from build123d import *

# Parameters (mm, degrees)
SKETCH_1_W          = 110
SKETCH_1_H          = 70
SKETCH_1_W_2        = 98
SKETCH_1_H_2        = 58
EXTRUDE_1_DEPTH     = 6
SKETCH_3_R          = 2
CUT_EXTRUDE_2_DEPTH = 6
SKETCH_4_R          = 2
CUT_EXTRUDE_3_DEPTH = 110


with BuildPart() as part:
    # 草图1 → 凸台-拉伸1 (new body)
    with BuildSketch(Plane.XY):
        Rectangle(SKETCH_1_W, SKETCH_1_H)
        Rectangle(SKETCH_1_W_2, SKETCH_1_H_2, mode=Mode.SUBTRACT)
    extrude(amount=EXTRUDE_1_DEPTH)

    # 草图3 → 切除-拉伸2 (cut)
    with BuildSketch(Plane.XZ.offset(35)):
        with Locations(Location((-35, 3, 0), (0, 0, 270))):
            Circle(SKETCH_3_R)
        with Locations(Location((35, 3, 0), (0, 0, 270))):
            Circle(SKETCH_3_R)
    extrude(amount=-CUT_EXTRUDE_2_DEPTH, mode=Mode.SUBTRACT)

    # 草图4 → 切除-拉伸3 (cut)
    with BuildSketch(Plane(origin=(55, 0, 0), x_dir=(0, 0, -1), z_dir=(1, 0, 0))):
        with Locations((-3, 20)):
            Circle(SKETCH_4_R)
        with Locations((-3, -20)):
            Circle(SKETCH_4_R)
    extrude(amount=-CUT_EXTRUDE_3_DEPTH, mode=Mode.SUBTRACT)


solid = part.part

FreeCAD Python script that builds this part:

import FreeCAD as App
import Part
import Sketcher
from FreeCAD import Vector

doc = App.newDocument("Part")
params = doc.addObject("Spreadsheet::Sheet", "Params")
for row, (alias, value) in enumerate([
    ("sketch1_width", "110 mm"),
    ("sketch1_width2", "98 mm"),
    ("sketch1_height", "70 mm"),
    ("sketch1_height2", "58 mm"),
    ("pad1_length", "6 mm"),
    ("sketch2_diameter", "4 mm"),
    ("pocket1_length", "6 mm"),
    ("sketch3_diameter", "4 mm"),
    ("pocket2_length", "110 mm"),
], start=1):
    params.set(f"A{row}", alias)
    params.set(f"B{row}", "=" + value)
    params.setAlias(f"B{row}", alias)

body = doc.addObject("PartDesign::Body", "Body")

# Sketch on XY plane
sketch1 = body.newObject("Sketcher::SketchObject", "Sketch")
sketch1.AttachmentSupport = (doc.getObject("XY_Plane"), [""])
sketch1.MapMode = "FlatFace"
sketch1.addGeometry(Part.LineSegment(Vector(-55, 35, 0), Vector(-55, -35, 0)), False)
sketch1.addGeometry(Part.LineSegment(Vector(-55, -35, 0), Vector(55, -35, 0)), False)
sketch1.addGeometry(Part.LineSegment(Vector(55, -35, 0), Vector(55, 35, 0)), False)
sketch1.addGeometry(Part.LineSegment(Vector(55, 35, 0), Vector(-55, 35, 0)), False)
sketch1.addGeometry(Part.LineSegment(Vector(49, -29, 0), Vector(-49, -29, 0)), False)
sketch1.addGeometry(Part.LineSegment(Vector(-49, -29, 0), Vector(-49, 29, 0)), False)
sketch1.addGeometry(Part.LineSegment(Vector(-49, 29, 0), Vector(49, 29, 0)), False)
sketch1.addGeometry(Part.LineSegment(Vector(49, 29, 0), Vector(49, -29, 0)), False)
sketch1.addConstraint(Sketcher.Constraint("Coincident", 0, 2, 1, 1))
sketch1.addConstraint(Sketcher.Constraint("Coincident", 1, 2, 2, 1))
sketch1.addConstraint(Sketcher.Constraint("Coincident", 2, 2, 3, 1))
sketch1.addConstraint(Sketcher.Constraint("Coincident", 3, 2, 0, 1))
sketch1.addConstraint(Sketcher.Constraint("Coincident", 4, 2, 5, 1))
sketch1.addConstraint(Sketcher.Constraint("Coincident", 5, 2, 6, 1))
sketch1.addConstraint(Sketcher.Constraint("Coincident", 6, 2, 7, 1))
sketch1.addConstraint(Sketcher.Constraint("Coincident", 7, 2, 4, 1))
sketch1.addConstraint(Sketcher.Constraint("Vertical", 0))
sketch1.addConstraint(Sketcher.Constraint("Horizontal", 1))
sketch1.addConstraint(Sketcher.Constraint("Vertical", 2))
sketch1.addConstraint(Sketcher.Constraint("Horizontal", 3))
sketch1.addConstraint(Sketcher.Constraint("Horizontal", 4))
sketch1.addConstraint(Sketcher.Constraint("Vertical", 5))
sketch1.addConstraint(Sketcher.Constraint("Horizontal", 6))
sketch1.addConstraint(Sketcher.Constraint("Vertical", 7))
sketch1.addConstraint(Sketcher.Constraint("Symmetric", 0, 2, 2, 2, -1, 1))
sketch1.addConstraint(Sketcher.Constraint("Symmetric", 4, 2, 6, 2, -1, 1))
sketch1.addConstraint(Sketcher.Constraint("DistanceX", 1, 1, 1, 2, 110.0))
sketch1.addConstraint(Sketcher.Constraint("DistanceX", 4, 2, 4, 1, 98.0))
sketch1.addConstraint(Sketcher.Constraint("DistanceY", 0, 2, 0, 1, 70.0))
sketch1.addConstraint(Sketcher.Constraint("DistanceY", 5, 1, 5, 2, 58.0))
sketch1.setExpression("Constraints[18]", "Params.sketch1_width")
sketch1.setExpression("Constraints[19]", "Params.sketch1_width2")
sketch1.setExpression("Constraints[20]", "Params.sketch1_height")
sketch1.setExpression("Constraints[21]", "Params.sketch1_height2")
pad1 = body.newObject("PartDesign::Pad", "Pad")
pad1.Profile = sketch1
pad1.setExpression("Length", "Params.pad1_length")

# Sketch on XZ plane
sketch2 = body.newObject("Sketcher::SketchObject", "Sketch001")
sketch2.AttachmentSupport = (doc.getObject("XZ_Plane"), [""])
sketch2.MapMode = "FlatFace"
sketch2.AttachmentOffset = App.Placement(Vector(0, 0, 35), App.Rotation())
sketch2.addGeometry(Part.Circle(Vector(-35, 3, 0), Vector(0, 0, 1), 2), False)
sketch2.addGeometry(Part.Circle(Vector(35, 3, 0), Vector(0, 0, 1), 2), False)
sketch2.addConstraint(Sketcher.Constraint("Equal", 0, 1))
sketch2.addConstraint(Sketcher.Constraint("Symmetric", 0, 3, 1, 3, -2))
sketch2.addConstraint(Sketcher.Constraint("Diameter", 0, 4.0))
sketch2.addConstraint(Sketcher.Constraint("DistanceX", 0, 3, -1, 1, 35.0))
sketch2.addConstraint(Sketcher.Constraint("DistanceY", -1, 1, 0, 3, 3.0))
sketch2.setExpression("Constraints[2]", "Params.sketch2_diameter")
pocket1 = body.newObject("PartDesign::Pocket", "Pocket")
pocket1.Profile = sketch2
pocket1.setExpression("Length", "Params.pocket1_length")

# Sketch on YZ plane
sketch3 = body.newObject("Sketcher::SketchObject", "Sketch002")
sketch3.AttachmentSupport = (doc.getObject("YZ_Plane"), [""])
sketch3.MapMode = "FlatFace"
sketch3.AttachmentOffset = App.Placement(Vector(0, 0, 55), App.Rotation())
sketch3.addGeometry(Part.Circle(Vector(20, 3, 0), Vector(0, 0, 1), 2), False)
sketch3.addGeometry(Part.Circle(Vector(-20, 3, 0), Vector(0, 0, 1), 2), False)
sketch3.addConstraint(Sketcher.Constraint("Equal", 0, 1))
sketch3.addConstraint(Sketcher.Constraint("Symmetric", 0, 3, 1, 3, -2))
sketch3.addConstraint(Sketcher.Constraint("Diameter", 0, 4.0))
sketch3.addConstraint(Sketcher.Constraint("DistanceX", -1, 1, 0, 3, 20.0))
sketch3.addConstraint(Sketcher.Constraint("DistanceY", -1, 1, 0, 3, 3.0))
sketch3.setExpression("Constraints[2]", "Params.sketch3_diameter")
pocket2 = body.newObject("PartDesign::Pocket", "Pocket001")
pocket2.Profile = sketch3
pocket2.setExpression("Length", "Params.pocket2_length")

doc.recompute()
